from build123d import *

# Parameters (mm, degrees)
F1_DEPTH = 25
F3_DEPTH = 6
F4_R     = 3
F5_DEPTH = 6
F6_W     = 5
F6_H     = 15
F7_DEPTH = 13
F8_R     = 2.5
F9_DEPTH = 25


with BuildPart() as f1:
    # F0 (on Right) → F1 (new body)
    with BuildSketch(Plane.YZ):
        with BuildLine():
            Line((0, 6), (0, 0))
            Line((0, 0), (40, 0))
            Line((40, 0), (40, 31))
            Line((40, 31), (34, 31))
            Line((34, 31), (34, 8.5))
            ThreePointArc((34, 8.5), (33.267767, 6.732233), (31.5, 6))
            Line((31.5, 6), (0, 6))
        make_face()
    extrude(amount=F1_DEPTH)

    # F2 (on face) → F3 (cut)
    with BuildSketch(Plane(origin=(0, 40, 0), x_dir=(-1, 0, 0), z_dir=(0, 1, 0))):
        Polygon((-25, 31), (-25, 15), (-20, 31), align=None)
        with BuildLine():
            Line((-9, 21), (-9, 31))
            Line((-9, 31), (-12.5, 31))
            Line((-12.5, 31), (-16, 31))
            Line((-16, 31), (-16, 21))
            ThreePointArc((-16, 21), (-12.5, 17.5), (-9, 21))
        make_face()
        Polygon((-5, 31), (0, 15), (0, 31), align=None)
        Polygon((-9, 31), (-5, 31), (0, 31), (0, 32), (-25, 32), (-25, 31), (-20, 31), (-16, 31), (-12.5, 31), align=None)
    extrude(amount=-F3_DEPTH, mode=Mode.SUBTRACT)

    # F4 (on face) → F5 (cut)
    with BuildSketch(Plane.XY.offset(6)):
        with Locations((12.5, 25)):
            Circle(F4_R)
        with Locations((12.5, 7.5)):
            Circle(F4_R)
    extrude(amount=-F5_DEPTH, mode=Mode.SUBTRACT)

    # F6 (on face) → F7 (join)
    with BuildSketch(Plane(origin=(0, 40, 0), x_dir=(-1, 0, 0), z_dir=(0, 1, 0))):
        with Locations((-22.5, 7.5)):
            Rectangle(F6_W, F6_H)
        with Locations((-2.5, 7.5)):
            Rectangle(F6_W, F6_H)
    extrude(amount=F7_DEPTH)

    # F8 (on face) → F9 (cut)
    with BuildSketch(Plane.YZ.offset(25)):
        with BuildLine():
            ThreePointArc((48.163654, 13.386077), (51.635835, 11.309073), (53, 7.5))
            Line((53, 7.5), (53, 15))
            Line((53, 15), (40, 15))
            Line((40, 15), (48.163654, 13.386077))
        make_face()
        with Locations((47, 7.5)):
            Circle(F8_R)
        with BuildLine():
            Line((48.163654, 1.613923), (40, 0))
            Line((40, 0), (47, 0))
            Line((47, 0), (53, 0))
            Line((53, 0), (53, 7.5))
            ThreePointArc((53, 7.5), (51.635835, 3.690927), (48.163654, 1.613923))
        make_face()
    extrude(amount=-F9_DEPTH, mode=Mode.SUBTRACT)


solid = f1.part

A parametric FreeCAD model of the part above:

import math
import FreeCAD as App
import Part
import Sketcher

V = App.Vector


def add_polygon(sketch, points):
    """Adds a closed chain of lines whose ends are joined by coincident constraints."""
    first, n = sketch.GeometryCount, len(points)
    for a, b in zip(points, points[1:] + points[:1]):
        sketch.addGeometry(Part.LineSegment(App.Vector(*a, 0), App.Vector(*b, 0)), False)
    for i in range(n):
        sketch.addConstraint(Sketcher.Constraint("Coincident", first + i, 2, first + (i + 1) % n, 1))

doc = App.newDocument("Part")
body = doc.addObject("PartDesign::Body", "Body")

# Sketch on YZ plane
sketch1 = body.newObject("Sketcher::SketchObject", "Sketch")
sketch1.AttachmentSupport = (doc.getObject("YZ_Plane"), [""])
sketch1.MapMode = "FlatFace"
sketch1.addGeometry([
    Part.LineSegment(V(0, 6, 0), V(0, 0, 0)),  # 0
    Part.LineSegment(V(0, 0, 0), V(40, 0, 0)),  # 1
    Part.LineSegment(V(40, 0, 0), V(40, 31, 0)),  # 2
    Part.LineSegment(V(40, 31, 0), V(34, 31, 0)),  # 3
    Part.LineSegment(V(34, 31, 0), V(34, 8.5, 0)),  # 4
    Part.ArcOfCircle(Part.Circle(V(31.5, 8.5, 0), V(0, 0, 1), 2.5), math.radians(-90), math.radians(0)),  # 5
    Part.LineSegment(V(31.5, 6, 0), V(0, 6, 0)),  # 6
], False)
sketch1.addConstraint([
    Sketcher.Constraint("Coincident", 0, 2, 1, 1),
    Sketcher.Constraint("Coincident", 1, 2, 2, 1),
    Sketcher.Constraint("Coincident", 2, 2, 3, 1),
    Sketcher.Constraint("Coincident", 3, 2, 4, 1),
    Sketcher.Constraint("Tangent", 4, 2, 5, 2),
    Sketcher.Constraint("Tangent", 5, 1, 6, 1),
    Sketcher.Constraint("Coincident", 6, 2, 0, 1),
    Sketcher.Constraint("Vertical", 0),
    Sketcher.Constraint("Horizontal", 1),
    Sketcher.Constraint("Vertical", 2),
    Sketcher.Constraint("Horizontal", 3),
    Sketcher.Constraint("Vertical", 4),
    Sketcher.Constraint("Horizontal", 6),
    Sketcher.Constraint("Coincident", 0, 2, -1, 1),
    Sketcher.Constraint("Equal", 3, 0),
    Sketcher.Constraint("Radius", 5, 2.5),
    Sketcher.Constraint("DistanceX", 1, 1, 1, 2, 40.0),
    Sketcher.Constraint("DistanceX", 3, 2, 3, 1, 6.0),
    Sketcher.Constraint("DistanceY", 2, 1, 2, 2, 31.0),
])
pad1 = body.newObject("PartDesign::Pad", "Pad")
pad1.Profile = sketch1
pad1.Length = 25

# Sketch on XZ plane
sketch2 = body.newObject("Sketcher::SketchObject", "Sketch001")
sketch2.AttachmentSupport = (doc.getObject("XZ_Plane"), [""])
sketch2.MapMode = "FlatFace"
sketch2.AttachmentOffset = App.Placement(V(0, 0, -40), App.Rotation())
sketch2.addGeometry([
    Part.LineSegment(V(25, 15, 0), V(20, 31, 0)),  # 0
    Part.LineSegment(V(20, 31, 0), V(16, 31, 0)),  # 1
    Part.LineSegment(V(16, 31, 0), V(16, 21, 0)),  # 2
    Part.ArcOfCircle(Part.Circle(V(12.5, 21, 0), V(0, 0, 1), 3.5), math.radians(180), math.radians(360)),  # 3
    Part.LineSegment(V(9, 21, 0), V(9, 31, 0)),  # 4
    Part.LineSegment(V(9, 31, 0), V(5, 31, 0)),  # 5
    Part.LineSegment(V(5, 31, 0), V(0, 15, 0)),  # 6
    Part.LineSegment(V(0, 15, 0), V(0, 32, 0)),  # 7
    Part.LineSegment(V(0, 32, 0), V(25, 32, 0)),  # 8
    Part.LineSegment(V(25, 32, 0), V(25, 15, 0)),  # 9
], False)
sketch2.addConstraint([
    Sketcher.Constraint("Coincident", 0, 2, 1, 1),
    Sketcher.Constraint("Coincident", 1, 2, 2, 1),
    Sketcher.Constraint("Tangent", 2, 2, 3, 2),
    Sketcher.Constraint("Tangent", 3, 1, 4, 1),
    Sketcher.Constraint("Coincident", 4, 2, 5, 1),
    Sketcher.Constraint("Coincident", 5, 2, 6, 1),
    Sketcher.Constraint("Coincident", 6, 2, 7, 1),
    Sketcher.Constraint("Coincident", 7, 2, 8, 1),
    Sketcher.Constraint("Coincident", 8, 2, 9, 1),
    Sketcher.Constraint("Coincident", 9, 2, 0, 1),
    Sketcher.Constraint("Horizontal", 1),
    Sketcher.Constraint("Vertical", 2),
    Sketcher.Constraint("Vertical", 4),
    Sketcher.Constraint("Horizontal", 5),
    Sketcher.Constraint("Vertical", 7),
    Sketcher.Constraint("Horizontal", 8),
    Sketcher.Constraint("Vertical", 9),
    Sketcher.Constraint("PointOnObject", 6, 2, -2),
    Sketcher.Constraint("Horizontal", 1, 2, 4, 2),
    Sketcher.Constraint("Horizontal", 6, 2, 9, 2),
    Sketcher.Constraint("Equal", 1, 5),
    Sketcher.Constraint("Equal", 0, 6),
    Sketcher.Constraint("Radius", 3, 3.5),
    Sketcher.Constraint("DistanceX", 1, 2, 1, 1, 4.0),
    Sketcher.Constraint("DistanceX", 8, 1, 8, 2, 25.0),
    Sketcher.Constraint("DistanceY", 2, 2, 2, 1, 10.0),
    Sketcher.Constraint("DistanceY", 7, 1, 7, 2, 17.0),
    Sketcher.Constraint("DistanceY", -1, 1, 3, 3, 21.0),
    Sketcher.Constraint("DistanceY", -1, 1, 6, 2, 15.0),
])
pocket1 = body.newObject("PartDesign::Pocket", "Pocket")
pocket1.Profile = sketch2
pocket1.Length = 6
pocket1.Reversed = True

# Sketch on XY plane
sketch3 = body.newObject("Sketcher::SketchObject", "Sketch002")
sketch3.AttachmentSupport = (doc.getObject("XY_Plane"), [""])
sketch3.MapMode = "FlatFace"
sketch3.AttachmentOffset = App.Placement(V(0, 0, 6), App.Rotation())
sketch3.addGeometry([
    Part.Circle(V(12.5, 25, 0), V(0, 0, 1), 3),
    Part.Circle(V(12.5, 7.5, 0), V(0, 0, 1), 3),
], False)
sketch3.addConstraint([
    Sketcher.Constraint("Equal", 0, 1),
    Sketcher.Constraint("Vertical", 0, 3, 1, 3),
    Sketcher.Constraint("Diameter", 0, 6.0),
    Sketcher.Constraint("DistanceY", -1, 1, 0, 3, 25.0),
    Sketcher.Constraint("DistanceX", -1, 1, 0, 3, 12.5),
    Sketcher.Constraint("DistanceY", -1, 1, 1, 3, 7.5),
])
pocket2 = body.newObject("PartDesign::Pocket", "Pocket001")
pocket2.Profile = sketch3
pocket2.Length = 6

# Sketch on XZ plane
sketch4 = body.newObject("Sketcher::SketchObject", "Sketch003")
sketch4.AttachmentSupport = (doc.getObject("XZ_Plane"), [""])
sketch4.MapMode = "FlatFace"
sketch4.AttachmentOffset = App.Placement(V(0, 0, -40), App.Rotation())
add_polygon(sketch4, [(25, 15), (25, 0), (20, 0), (20, 15)])  # lines 0-3
add_polygon(sketch4, [(5, 15), (5, 0), (0, 0), (0, 15)])  # lines 4-7
sketch4.addConstraint([
    Sketcher.Constraint("Vertical", 0),
    Sketcher.Constraint("Horizontal", 1),
    Sketcher.Constraint("Vertical", 2),
    Sketcher.Constraint("Horizontal", 3),
    Sketcher.Constraint("Vertical", 4),
    Sketcher.Constraint("Horizontal", 5),
    Sketcher.Constraint("Vertical", 6),
    Sketcher.Constraint("Horizontal", 7),
    Sketcher.Constraint("Coincident", 5, 2, -1, 1),
    Sketcher.Constraint("PointOnObject", 0, 2, -1),
    Sketcher.Constraint("Horizontal", 3, 2, 6, 2),
    Sketcher.Constraint("Equal", 3, 5),
    Sketcher.Constraint("DistanceX", 1, 2, 1, 1, 5.0),
    Sketcher.Constraint("DistanceY", 0, 2, 0, 1, 15.0),
    Sketcher.Constraint("DistanceX", -1, 1, 0, 2, 25.0),
])
pad2 = body.newObject("PartDesign::Pad", "Pad001")
pad2.Profile = sketch4
pad2.Length = 13
pad2.Reversed = True

# Sketch on YZ plane
sketch5 = body.newObject("Sketcher::SketchObject", "Sketch004")
sketch5.AttachmentSupport = (doc.getObject("YZ_Plane"), [""])
sketch5.MapMode = "FlatFace"
sketch5.AttachmentOffset = App.Placement(V(0, 0, 25), App.Rotation())
sketch5.addGeometry([
    Part.ArcOfCircle(Part.Circle(V(47, 7.5, 0), V(0, 0, 1), 6), math.radians(0), math.radians(79)),  # 0
    Part.LineSegment(V(53, 7.5, 0), V(53, 15, 0)),  # 1
    Part.LineSegment(V(53, 15, 0), V(40, 15, 0)),  # 2
    Part.LineSegment(V(40, 15, 0), V(48.2, 13.4, 0)),  # 3
    Part.Circle(V(47, 7.5, 0), V(0, 0, 1), 2.5),  # 4
    Part.LineSegment(V(48.2, 1.6, 0), V(40, 0, 0)),  # 5
    Part.LineSegment(V(40, 0, 0), V(53, 0, 0)),  # 6
    Part.LineSegment(V(53, 0, 0), V(53, 7.5, 0)),  # 7
    Part.ArcOfCircle(Part.Circle(V(47, 7.5, 0), V(0, 0, 1), 6), math.radians(-79), math.radians(0)),  # 8
], False)
sketch5.addConstraint([
    Sketcher.Constraint("Tangent", 0, 1, 1, 1),
    Sketcher.Constraint("Coincident", 1, 2, 2, 1),
    Sketcher.Constraint("Coincident", 2, 2, 3, 1),
    Sketcher.Constraint("Tangent", 3, 2, 0, 2),
    Sketcher.Constraint("Coincident", 5, 2, 6, 1),
    Sketcher.Constraint("Coincident", 6, 2, 7, 1),
    Sketcher.Constraint("Tangent", 7, 2, 8, 2),
    Sketcher.Constraint("Tangent", 8, 1, 5, 1),
    Sketcher.Constraint("Vertical", 1),
    Sketcher.Constraint("Horizontal", 2),
    Sketcher.Constraint("Horizontal", 6),
    Sketcher.Constraint("Vertical", 7),
    Sketcher.Constraint("Coincident", 4, 3, 0, 3),
    Sketcher.Constraint("Coincident", 8, 3, 0, 3),
    Sketcher.Constraint("Equal", 0, 8),
    Sketcher.Constraint("PointOnObject", 5, 2, -1),
    Sketcher.Constraint("Vertical", 2, 2, 5, 2),
    Sketcher.Constraint("Vertical", 3, 2, 8, 1),
    Sketcher.Constraint("Diameter", 4, 5.0),
    Sketcher.Constraint("DistanceX", 2, 2, 2, 1, 13.0),
    Sketcher.Constraint("DistanceY", 1, 1, 1, 2, 7.5),
    Sketcher.Constraint("DistanceX", -1, 1, 4, 3, 47.0),
    Sketcher.Constraint("DistanceX", -1, 1, 0, 1, 53.0),
])
pocket3 = body.newObject("PartDesign::Pocket", "Pocket002")
pocket3.Profile = sketch5
pocket3.Length = 25

doc.recompute()
